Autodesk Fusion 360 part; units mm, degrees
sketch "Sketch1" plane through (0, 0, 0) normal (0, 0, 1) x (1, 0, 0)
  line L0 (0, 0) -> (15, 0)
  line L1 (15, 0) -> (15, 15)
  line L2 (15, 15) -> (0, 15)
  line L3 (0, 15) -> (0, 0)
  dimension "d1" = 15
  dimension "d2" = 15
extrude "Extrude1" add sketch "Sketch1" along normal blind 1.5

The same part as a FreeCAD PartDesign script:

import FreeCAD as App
import Part
import Sketcher
from FreeCAD import Vector
Q = App.Units.Quantity

doc = App.newDocument("Part")
body = doc.addObject("PartDesign::Body", "Body")

# Sketch on XY plane
sketch1 = body.newObject("Sketcher::SketchObject", "Sketch")
sketch1.AttachmentSupport = (doc.getObject("XY_Plane"), [""])
sketch1.MapMode = "FlatFace"
sketch1.addGeometry([
    Part.LineSegment(Vector(0, 15, 0), Vector(0, 0, 0)),
    Part.LineSegment(Vector(0, 0, 0), Vector(15, 0, 0)),
    Part.LineSegment(Vector(15, 0, 0), Vector(15, 15, 0)),
    Part.LineSegment(Vector(15, 15, 0), Vector(0, 15, 0)),
], False)
sketch1.addConstraint([
    Sketcher.Constraint("Coincident", 0, 2, 1, 1),
    Sketcher.Constraint("Coincident", 1, 2, 2, 1),
    Sketcher.Constraint("Coincident", 2, 2, 3, 1),
    Sketcher.Constraint("Coincident", 3, 2, 0, 1),
    Sketcher.Constraint("Vertical", 0),
    Sketcher.Constraint("Horizontal", 1),
    Sketcher.Constraint("Vertical", 2),
    Sketcher.Constraint("Horizontal", 3),
    Sketcher.Constraint("Coincident", 0, 2, -1, 1),
    Sketcher.Constraint("Equal", 3, 0),
    Sketcher.Constraint("DistanceX", 1, 1, 1, 2, Q("15 mm")),
])
pad1 = body.newObject("PartDesign::Pad", "Pad")
pad1.Profile = sketch1
pad1.Length = 1.5

doc.recompute()
